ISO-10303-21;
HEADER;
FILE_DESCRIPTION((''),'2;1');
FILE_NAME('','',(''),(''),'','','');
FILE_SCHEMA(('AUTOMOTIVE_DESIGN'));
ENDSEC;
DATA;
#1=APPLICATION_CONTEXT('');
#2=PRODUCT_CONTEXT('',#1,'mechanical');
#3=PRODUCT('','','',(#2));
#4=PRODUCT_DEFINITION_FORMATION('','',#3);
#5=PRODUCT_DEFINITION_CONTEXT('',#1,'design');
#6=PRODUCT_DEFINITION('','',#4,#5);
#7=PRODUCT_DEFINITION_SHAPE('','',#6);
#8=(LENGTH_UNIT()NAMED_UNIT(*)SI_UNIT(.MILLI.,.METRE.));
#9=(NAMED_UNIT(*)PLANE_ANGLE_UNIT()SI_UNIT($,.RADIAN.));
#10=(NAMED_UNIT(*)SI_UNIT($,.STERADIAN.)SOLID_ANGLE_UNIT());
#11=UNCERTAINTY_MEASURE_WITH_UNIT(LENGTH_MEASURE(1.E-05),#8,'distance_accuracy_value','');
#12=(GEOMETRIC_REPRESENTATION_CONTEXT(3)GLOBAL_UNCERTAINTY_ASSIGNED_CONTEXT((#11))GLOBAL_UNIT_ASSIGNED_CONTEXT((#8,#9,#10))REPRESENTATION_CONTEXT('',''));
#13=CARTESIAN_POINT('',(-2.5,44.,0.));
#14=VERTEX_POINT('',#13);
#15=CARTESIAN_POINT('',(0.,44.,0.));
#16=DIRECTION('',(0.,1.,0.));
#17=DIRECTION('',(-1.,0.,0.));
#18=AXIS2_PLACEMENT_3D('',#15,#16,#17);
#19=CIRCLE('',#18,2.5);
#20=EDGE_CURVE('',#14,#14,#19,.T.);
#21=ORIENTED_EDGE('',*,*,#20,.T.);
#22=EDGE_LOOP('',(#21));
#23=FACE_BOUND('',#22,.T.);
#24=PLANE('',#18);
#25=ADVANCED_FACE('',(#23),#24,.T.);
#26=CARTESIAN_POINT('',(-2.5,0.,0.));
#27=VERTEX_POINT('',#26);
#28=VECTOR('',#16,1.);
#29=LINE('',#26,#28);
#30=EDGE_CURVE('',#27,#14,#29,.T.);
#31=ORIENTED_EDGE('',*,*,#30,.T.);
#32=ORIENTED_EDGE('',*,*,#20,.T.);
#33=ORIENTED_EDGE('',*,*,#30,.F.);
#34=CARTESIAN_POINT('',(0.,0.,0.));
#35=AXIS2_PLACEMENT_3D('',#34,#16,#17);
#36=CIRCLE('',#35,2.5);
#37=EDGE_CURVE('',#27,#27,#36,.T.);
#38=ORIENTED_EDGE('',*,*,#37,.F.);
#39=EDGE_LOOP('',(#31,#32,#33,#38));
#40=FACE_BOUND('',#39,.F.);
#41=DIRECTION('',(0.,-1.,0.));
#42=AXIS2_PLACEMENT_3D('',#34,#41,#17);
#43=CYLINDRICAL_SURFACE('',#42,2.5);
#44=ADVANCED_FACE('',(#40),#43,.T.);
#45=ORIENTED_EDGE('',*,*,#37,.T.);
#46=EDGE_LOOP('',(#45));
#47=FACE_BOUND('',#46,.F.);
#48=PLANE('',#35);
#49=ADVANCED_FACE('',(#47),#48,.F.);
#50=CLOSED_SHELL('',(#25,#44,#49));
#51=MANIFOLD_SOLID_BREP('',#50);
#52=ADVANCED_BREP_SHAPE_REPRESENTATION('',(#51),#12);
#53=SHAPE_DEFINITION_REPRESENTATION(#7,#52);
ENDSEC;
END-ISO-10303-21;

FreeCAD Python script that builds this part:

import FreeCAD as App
import Part
import Sketcher

V = App.Vector
Q = App.Units.Quantity

doc = App.newDocument("Part")
body = doc.addObject("PartDesign::Body", "Body")

# Sketch on XZ plane
sketch1 = body.newObject("Sketcher::SketchObject", "Sketch")
sketch1.AttachmentSupport = (doc.getObject("XZ_Plane"), [""])
sketch1.MapMode = "FlatFace"
sketch1.addGeometry(Part.Circle(V(0, 0, 0), V(0, 0, 1), 2.5), False)
sketch1.addConstraint(Sketcher.Constraint("Coincident", 0, 3, -1, 1))
sketch1.addConstraint(Sketcher.Constraint("Diameter", 0, Q("5 mm")))
pad1 = body.newObject("PartDesign::Pad", "Pad")
pad1.Profile = sketch1
pad1.Length = 44
pad1.Reversed = True

doc.recompute()
